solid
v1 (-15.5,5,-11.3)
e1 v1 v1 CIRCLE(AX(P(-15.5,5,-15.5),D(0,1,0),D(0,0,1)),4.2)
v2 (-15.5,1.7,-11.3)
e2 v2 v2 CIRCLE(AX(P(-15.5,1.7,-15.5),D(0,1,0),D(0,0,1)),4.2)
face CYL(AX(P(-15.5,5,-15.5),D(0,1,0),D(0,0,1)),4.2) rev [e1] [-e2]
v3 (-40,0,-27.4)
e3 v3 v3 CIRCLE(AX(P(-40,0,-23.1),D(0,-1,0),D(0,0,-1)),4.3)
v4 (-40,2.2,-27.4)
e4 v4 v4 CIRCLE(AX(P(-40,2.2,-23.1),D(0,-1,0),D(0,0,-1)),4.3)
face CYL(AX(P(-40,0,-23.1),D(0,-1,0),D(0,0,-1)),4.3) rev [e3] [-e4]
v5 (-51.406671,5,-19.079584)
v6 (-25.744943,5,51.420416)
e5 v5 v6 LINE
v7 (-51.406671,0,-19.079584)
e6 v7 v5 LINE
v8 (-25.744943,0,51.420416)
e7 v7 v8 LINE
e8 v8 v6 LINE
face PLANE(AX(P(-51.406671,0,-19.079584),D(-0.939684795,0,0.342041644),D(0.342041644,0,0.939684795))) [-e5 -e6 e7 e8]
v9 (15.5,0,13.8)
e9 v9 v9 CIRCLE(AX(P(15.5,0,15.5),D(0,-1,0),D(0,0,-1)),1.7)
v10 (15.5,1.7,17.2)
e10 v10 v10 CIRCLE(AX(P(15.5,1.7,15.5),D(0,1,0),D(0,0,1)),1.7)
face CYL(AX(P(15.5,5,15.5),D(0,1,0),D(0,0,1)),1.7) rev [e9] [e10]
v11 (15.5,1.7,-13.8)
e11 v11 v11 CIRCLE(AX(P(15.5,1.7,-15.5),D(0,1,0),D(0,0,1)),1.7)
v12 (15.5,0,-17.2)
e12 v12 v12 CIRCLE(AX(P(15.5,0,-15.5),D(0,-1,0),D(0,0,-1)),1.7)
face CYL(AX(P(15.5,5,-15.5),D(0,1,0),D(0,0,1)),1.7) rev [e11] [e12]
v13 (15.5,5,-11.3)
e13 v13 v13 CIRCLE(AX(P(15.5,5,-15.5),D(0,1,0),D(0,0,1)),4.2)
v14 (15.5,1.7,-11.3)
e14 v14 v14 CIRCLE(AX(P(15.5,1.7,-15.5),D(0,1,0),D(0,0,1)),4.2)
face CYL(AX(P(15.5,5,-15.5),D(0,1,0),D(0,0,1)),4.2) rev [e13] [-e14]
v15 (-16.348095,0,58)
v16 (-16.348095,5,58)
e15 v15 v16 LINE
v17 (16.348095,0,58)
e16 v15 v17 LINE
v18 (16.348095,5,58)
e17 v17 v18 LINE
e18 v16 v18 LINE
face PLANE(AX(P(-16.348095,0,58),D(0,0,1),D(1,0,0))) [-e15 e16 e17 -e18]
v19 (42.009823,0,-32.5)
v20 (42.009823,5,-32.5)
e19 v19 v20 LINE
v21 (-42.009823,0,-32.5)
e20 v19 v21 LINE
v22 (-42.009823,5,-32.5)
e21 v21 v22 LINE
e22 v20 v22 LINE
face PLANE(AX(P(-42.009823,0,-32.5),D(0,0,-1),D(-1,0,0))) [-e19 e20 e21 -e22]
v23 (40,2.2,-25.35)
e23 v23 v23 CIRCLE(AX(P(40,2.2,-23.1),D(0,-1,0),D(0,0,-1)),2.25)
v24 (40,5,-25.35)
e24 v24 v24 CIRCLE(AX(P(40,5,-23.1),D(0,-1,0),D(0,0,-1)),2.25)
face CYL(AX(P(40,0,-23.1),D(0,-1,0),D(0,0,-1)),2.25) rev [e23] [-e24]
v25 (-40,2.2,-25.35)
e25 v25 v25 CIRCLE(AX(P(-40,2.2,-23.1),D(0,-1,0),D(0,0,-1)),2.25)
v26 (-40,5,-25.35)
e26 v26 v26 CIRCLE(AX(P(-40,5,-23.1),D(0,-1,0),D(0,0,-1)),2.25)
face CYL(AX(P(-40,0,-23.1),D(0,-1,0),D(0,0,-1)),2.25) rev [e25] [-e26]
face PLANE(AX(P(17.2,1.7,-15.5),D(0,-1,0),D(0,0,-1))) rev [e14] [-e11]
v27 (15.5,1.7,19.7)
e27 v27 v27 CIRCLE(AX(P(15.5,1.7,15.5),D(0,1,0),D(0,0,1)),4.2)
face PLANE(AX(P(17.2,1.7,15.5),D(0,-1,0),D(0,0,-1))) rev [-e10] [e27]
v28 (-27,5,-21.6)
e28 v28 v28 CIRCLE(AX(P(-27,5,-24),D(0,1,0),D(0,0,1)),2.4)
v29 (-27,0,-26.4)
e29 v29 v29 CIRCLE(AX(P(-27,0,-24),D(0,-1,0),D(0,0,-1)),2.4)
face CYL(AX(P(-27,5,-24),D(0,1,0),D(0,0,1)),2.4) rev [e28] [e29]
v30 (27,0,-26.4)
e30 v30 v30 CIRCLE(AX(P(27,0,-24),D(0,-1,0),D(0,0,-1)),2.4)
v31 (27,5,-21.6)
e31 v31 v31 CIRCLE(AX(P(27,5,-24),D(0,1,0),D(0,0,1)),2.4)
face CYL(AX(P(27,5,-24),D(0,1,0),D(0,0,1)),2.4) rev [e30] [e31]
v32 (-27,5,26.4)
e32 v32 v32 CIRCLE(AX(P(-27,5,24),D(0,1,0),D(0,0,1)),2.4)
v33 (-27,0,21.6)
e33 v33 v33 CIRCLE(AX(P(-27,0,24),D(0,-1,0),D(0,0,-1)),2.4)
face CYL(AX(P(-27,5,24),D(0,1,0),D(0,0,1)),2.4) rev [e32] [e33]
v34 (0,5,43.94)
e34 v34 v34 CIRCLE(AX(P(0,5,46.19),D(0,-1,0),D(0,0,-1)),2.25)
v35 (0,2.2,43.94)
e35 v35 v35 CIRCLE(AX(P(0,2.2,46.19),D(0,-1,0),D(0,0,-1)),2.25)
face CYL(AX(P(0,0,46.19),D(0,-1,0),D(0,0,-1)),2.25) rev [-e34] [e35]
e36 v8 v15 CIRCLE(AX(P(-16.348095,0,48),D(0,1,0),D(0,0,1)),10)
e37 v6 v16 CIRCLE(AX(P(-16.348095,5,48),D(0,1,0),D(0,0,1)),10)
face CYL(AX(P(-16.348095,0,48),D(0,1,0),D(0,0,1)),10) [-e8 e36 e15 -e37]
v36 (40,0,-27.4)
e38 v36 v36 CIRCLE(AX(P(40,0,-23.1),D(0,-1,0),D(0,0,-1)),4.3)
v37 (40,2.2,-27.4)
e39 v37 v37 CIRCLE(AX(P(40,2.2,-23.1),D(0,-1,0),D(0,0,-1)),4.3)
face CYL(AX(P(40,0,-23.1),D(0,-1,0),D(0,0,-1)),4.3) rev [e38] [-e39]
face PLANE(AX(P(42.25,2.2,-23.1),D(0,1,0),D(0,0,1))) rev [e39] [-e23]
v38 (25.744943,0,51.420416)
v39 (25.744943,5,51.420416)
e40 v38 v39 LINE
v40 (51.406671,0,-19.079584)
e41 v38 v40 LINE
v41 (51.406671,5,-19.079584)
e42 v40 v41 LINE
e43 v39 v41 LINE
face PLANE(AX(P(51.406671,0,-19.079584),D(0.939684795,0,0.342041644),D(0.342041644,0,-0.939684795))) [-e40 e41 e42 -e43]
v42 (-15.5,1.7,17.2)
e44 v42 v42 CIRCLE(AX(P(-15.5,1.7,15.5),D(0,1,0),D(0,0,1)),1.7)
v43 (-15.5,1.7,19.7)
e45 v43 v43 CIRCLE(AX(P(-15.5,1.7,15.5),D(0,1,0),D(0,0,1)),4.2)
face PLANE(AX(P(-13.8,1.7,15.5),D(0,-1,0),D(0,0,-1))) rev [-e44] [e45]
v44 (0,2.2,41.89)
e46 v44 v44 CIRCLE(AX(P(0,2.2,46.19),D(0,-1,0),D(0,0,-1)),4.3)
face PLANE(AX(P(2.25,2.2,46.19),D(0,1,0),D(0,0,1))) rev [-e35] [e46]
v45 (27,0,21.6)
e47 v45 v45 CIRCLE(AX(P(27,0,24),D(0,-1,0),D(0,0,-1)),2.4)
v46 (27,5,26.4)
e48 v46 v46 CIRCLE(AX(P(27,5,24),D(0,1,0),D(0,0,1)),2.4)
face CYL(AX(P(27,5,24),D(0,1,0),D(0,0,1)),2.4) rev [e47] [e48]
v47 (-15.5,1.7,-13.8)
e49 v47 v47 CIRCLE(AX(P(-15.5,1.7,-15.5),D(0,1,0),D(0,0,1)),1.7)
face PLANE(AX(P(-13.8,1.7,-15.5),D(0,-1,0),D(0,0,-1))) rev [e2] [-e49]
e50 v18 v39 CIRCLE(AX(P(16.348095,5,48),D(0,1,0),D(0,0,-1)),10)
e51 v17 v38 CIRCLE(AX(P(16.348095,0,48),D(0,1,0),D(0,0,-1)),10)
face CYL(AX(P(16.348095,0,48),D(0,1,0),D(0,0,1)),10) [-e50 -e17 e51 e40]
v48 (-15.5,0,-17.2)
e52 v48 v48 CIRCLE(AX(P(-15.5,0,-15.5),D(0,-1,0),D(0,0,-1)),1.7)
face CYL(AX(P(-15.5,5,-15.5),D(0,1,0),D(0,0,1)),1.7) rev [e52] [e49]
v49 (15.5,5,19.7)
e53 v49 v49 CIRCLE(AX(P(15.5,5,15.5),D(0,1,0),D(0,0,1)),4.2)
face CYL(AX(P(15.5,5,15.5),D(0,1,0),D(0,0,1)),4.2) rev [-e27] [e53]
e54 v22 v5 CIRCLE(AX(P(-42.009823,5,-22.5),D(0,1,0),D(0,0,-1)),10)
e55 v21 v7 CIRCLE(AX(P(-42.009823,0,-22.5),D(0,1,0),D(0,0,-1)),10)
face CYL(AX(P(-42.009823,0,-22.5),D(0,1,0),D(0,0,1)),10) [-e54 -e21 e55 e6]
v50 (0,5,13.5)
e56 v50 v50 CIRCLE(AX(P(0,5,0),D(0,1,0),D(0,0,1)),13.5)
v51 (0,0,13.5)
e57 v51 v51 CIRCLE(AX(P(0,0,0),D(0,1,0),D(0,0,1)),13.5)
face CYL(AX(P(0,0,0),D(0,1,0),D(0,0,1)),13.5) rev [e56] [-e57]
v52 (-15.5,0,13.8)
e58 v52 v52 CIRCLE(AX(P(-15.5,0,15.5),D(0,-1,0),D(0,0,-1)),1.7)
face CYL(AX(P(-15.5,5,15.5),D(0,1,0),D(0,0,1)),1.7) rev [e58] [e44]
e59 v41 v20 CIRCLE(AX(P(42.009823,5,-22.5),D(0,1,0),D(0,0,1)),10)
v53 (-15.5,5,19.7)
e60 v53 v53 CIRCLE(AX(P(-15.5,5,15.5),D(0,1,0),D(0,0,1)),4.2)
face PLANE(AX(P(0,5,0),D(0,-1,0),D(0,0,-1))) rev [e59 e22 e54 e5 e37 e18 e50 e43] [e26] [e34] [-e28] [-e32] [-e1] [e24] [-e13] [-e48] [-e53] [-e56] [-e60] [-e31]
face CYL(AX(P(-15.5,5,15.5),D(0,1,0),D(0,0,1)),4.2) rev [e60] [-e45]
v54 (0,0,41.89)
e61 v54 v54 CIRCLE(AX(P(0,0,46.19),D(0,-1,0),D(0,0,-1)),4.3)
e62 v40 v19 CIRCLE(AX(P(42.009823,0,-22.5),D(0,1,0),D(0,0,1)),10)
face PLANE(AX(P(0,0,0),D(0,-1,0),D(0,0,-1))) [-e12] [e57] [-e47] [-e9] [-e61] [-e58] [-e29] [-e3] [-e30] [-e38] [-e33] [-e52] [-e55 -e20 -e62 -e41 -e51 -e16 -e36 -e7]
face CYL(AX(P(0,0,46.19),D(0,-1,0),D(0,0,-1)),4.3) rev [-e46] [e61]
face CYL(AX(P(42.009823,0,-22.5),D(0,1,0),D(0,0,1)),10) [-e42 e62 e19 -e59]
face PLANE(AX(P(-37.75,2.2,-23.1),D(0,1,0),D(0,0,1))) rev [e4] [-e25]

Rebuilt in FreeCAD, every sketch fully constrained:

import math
import FreeCAD as App
import Part
import Sketcher

V = App.Vector
Q = App.Units.Quantity


def add_polygon(sketch, points):
    """Adds a closed chain of lines whose ends are joined by coincident constraints."""
    first, n = sketch.GeometryCount, len(points)
    for a, b in zip(points, points[1:] + points[:1]):
        sketch.addGeometry(Part.LineSegment(App.Vector(*a, 0), App.Vector(*b, 0)), False)
    for i in range(n):
        sketch.addConstraint(Sketcher.Constraint("Coincident", first + i, 2, first + (i + 1) % n, 1))

doc = App.newDocument("Part")
body = doc.addObject("PartDesign::Body", "Body")

sketch1 = body.newObject("Sketcher::SketchObject", "Sketch")
sketch1.AttachmentSupport = (doc.getObject("XZ_Plane"), [""])
sketch1.MapMode = "FlatFace"
add_polygon(sketch1, [(-65, -65), (-65, 65), (65, 65), (65, -65)])
sketch1.addConstraint([
    Sketcher.Constraint("Vertical", 0),
    Sketcher.Constraint("Horizontal", 1),
    Sketcher.Constraint("Vertical", 2),
    Sketcher.Constraint("Horizontal", 3),
    Sketcher.Constraint("Symmetric", 0, 2, 2, 2, -1, 1),
    Sketcher.Constraint("Equal", 3, 0),
    Sketcher.Constraint("DistanceX", 1, 1, 1, 2, Q("130 mm")),
])
pad1 = body.newObject("PartDesign::Pad", "Pad")
pad1.Profile = sketch1
pad1.Length = 5
pad1.Reversed = True

sketch2 = body.newObject("Sketcher::SketchObject", "Sketch001")
sketch2.AttachmentSupport = (doc.getObject("XZ_Plane"), [""])
sketch2.MapMode = "FlatFace"
sketch2.AttachmentOffset = App.Placement(V(0, 0, -5), App.Rotation())
sketch2.addGeometry(Part.Circle(V(0, 0, 0), V(0, 0, 1), 14), False)
sketch2.addConstraint([
    Sketcher.Constraint("Coincident", 0, 3, -1, 1),
    Sketcher.Constraint("Diameter", 0, Q("27 mm")),
])
pocket1 = body.newObject("PartDesign::Pocket", "Pocket")
pocket1.Profile = sketch2
pocket1.Length = 5
pocket1.Reversed = True

sketch3 = body.newObject("Sketcher::SketchObject", "Sketch002")
sketch3.AttachmentSupport = (doc.getObject("XZ_Plane"), [""])
sketch3.MapMode = "FlatFace"
sketch3.AttachmentOffset = App.Placement(V(0, 0, -5), App.Rotation())
add_polygon(sketch3, [(-65, -65), (-65, 65), (65, 65), (65, -65)])
sketch3.addGeometry(Part.ArcOfCircle(Part.Circle(V(-42, -22, 0), V(0, 0, 1), 10), math.radians(160), math.radians(270)), False)
sketch3.addGeometry(Part.LineSegment(V(-42, -32, 0), V(42, -32, 0)), False)
sketch3.addGeometry(Part.ArcOfCircle(Part.Circle(V(42, -22, 0), V(0, 0, 1), 10), math.radians(-90), math.radians(20)), False)
sketch3.addGeometry(Part.LineSegment(V(51, -19, 0), V(26, 51, 0)), False)
sketch3.addGeometry(Part.ArcOfCircle(Part.Circle(V(16, 48, 0), V(0, 0, 1), 10), math.radians(20), math.radians(90)), False)
sketch3.addGeometry(Part.LineSegment(V(16, 58, 0), V(-16, 58, 0)), False)
sketch3.addGeometry(Part.ArcOfCircle(Part.Circle(V(-16, 48, 0), V(0, 0, 1), 10), math.radians(90), math.radians(160)), False)
sketch3.addGeometry(Part.LineSegment(V(-26, 51, 0), V(-51, -19, 0)), False)
sketch3.addConstraint([
    Sketcher.Constraint("Tangent", 4, 2, 5, 1),
    Sketcher.Constraint("Tangent", 5, 2, 6, 1),
    Sketcher.Constraint("Tangent", 6, 2, 7, 1),
    Sketcher.Constraint("Tangent", 7, 2, 8, 1),
    Sketcher.Constraint("Tangent", 8, 2, 9, 1),
    Sketcher.Constraint("Tangent", 9, 2, 10, 1),
    Sketcher.Constraint("Tangent", 10, 2, 11, 1),
    Sketcher.Constraint("Tangent", 11, 2, 4, 1),
    Sketcher.Constraint("Vertical", 0),
    Sketcher.Constraint("Horizontal", 1),
    Sketcher.Constraint("Vertical", 2),
    Sketcher.Constraint("Horizontal", 3),
    Sketcher.Constraint("Horizontal", 5),
    Sketcher.Constraint("Horizontal", 9),
    Sketcher.Constraint("Equal", 4, 6),
    Sketcher.Constraint("Equal", 6, 8),
    Sketcher.Constraint("Equal", 8, 10),
    Sketcher.Constraint("Symmetric", 0, 2, 2, 2, -1, 1),
    Sketcher.Constraint("Symmetric", 7, 2, 10, 2, -2),
    Sketcher.Constraint("Equal", 3, 0),
    Sketcher.Constraint("Radius", 4, Q("10 mm")),
    Sketcher.Constraint("DistanceX", 1, 1, 1, 2, Q("130 mm")),
    Sketcher.Constraint("DistanceY", -1, 1, 8, 3, Q("48 mm")),
    Sketcher.Constraint("DistanceY", 4, 3, -1, 1, Q("22.5 mm")),
    Sketcher.Constraint("DistanceX", 9, 2, 9, 1, Q("32.69619 mm")),
    Sketcher.Constraint("DistanceX", 5, 1, 5, 2, Q("84.019647 mm")),
])
pocket2 = body.newObject("PartDesign::Pocket", "Pocket001")
pocket2.Profile = sketch3
pocket2.Type = "ThroughAll"
pocket2.Reversed = True

sketch4 = body.newObject("Sketcher::SketchObject", "Sketch003")
sketch4.AttachmentSupport = (doc.getObject("XZ_Plane"), [""])
sketch4.MapMode = "FlatFace"
sketch4.AttachmentOffset = App.Placement(V(0, 0, -5), App.Rotation())
sketch4.addGeometry([
    Part.Circle(V(-27, -24, 0), V(0, 0, 1), 2.4),
    Part.Circle(V(27, -24, 0), V(0, 0, 1), 2.4),
    Part.Circle(V(27, 24, 0), V(0, 0, 1), 2.4),
    Part.Circle(V(-27, 24, 0), V(0, 0, 1), 2.4),
], False)
sketch4.addConstraint([
    Sketcher.Constraint("Equal", 0, 1),
    Sketcher.Constraint("Equal", 1, 2),
    Sketcher.Constraint("Equal", 2, 3),
    Sketcher.Constraint("Symmetric", 0, 3, 2, 3, -1, 1),
    Sketcher.Constraint("Symmetric", 1, 3, 3, 3, -1, 1),
    Sketcher.Constraint("Symmetric", 0, 3, 1, 3, -2),
    Sketcher.Constraint("Diameter", 0, Q("4.8 mm")),
    Sketcher.Constraint("DistanceX", 0, 3, -1, 1, Q("27 mm")),
    Sketcher.Constraint("DistanceY", 0, 3, -1, 1, Q("24 mm")),
])
doc.recompute()
hole = body.newObject("PartDesign::Hole", "Hole")
hole.Profile = sketch4
hole.ThreadType = "None"
hole.Diameter = 4.8
hole.DepthType = "Dimension"
hole.Depth = 5
hole.DrillPoint = "Flat"
hole.Reversed = True

sketch5 = body.newObject("Sketcher::SketchObject", "Sketch004")
sketch5.AttachmentSupport = (doc.getObject("XZ_Plane"), [""])
sketch5.MapMode = "FlatFace"
sketch5.AttachmentOffset = App.Placement(V(0, 0, -5), App.Rotation())
sketch5.addGeometry([
    Part.Circle(V(-15.5, -15.5, 0), V(0, 0, 1), 1.7),
    Part.Circle(V(15.5, -15.5, 0), V(0, 0, 1), 1.7),
    Part.Circle(V(15.5, 15.5, 0), V(0, 0, 1), 1.7),
    Part.Circle(V(-15.5, 15.5, 0), V(0, 0, 1), 1.7),
], False)
sketch5.addConstraint([
    Sketcher.Constraint("Equal", 0, 1),
    Sketcher.Constraint("Equal", 1, 2),
    Sketcher.Constraint("Equal", 2, 3),
    Sketcher.Constraint("Symmetric", 0, 3, 2, 3, -1, 1),
    Sketcher.Constraint("Symmetric", 1, 3, 3, 3, -1, 1),
    Sketcher.Constraint("Symmetric", 0, 3, 1, 3, -2),
    Sketcher.Constraint("Diameter", 0, Q("3.4 mm")),
    Sketcher.Constraint("DistanceX", 0, 3, 1, 3, Q("31 mm")),
    Sketcher.Constraint("DistanceY", 1, 3, 2, 3, Q("31 mm")),
])
doc.recompute()
hole2 = body.newObject("PartDesign::Hole", "Hole001")
hole2.Profile = sketch5
hole2.ThreadType = "None"
hole2.Diameter = 3.4
hole2.DepthType = "Dimension"
hole2.Depth = 5
hole2.DrillPoint = "Flat"
hole2.HoleCutType = "Counterbore"
hole2.HoleCutDiameter = 8.4
hole2.HoleCutDepth = 3.3
hole2.Reversed = True

sketch6 = body.newObject("Sketcher::SketchObject", "Sketch005")
sketch6.AttachmentSupport = (doc.getObject("XZ_Plane"), [""])
sketch6.MapMode = "FlatFace"
sketch6.addGeometry([
    Part.Circle(V(0, 46.2, 0), V(0, 0, 1), 2.2),
    Part.Circle(V(-40, -23.1, 0), V(0, 0, 1), 2.2),
    Part.Circle(V(40, -23.1, 0), V(0, 0, 1), 2.2),
], False)
sketch6.addConstraint([
    Sketcher.Constraint("Equal", 0, 1),
    Sketcher.Constraint("Equal", 1, 2),
    Sketcher.Constraint("Symmetric", 1, 3, 2, 3, -2),
    Sketcher.Constraint("PointOnObject", 0, 3, -2),
    Sketcher.Constraint("Diameter", 0, Q("4.5 mm")),
    Sketcher.Constraint("DistanceX", 1, 3, -1, 1, Q("40 mm")),
    Sketcher.Constraint("DistanceY", 1, 3, -1, 1, Q("23.1 mm")),
    Sketcher.Constraint("DistanceY", -1, 1, 0, 3, Q("46.19 mm")),
])
doc.recompute()
hole3 = body.newObject("PartDesign::Hole", "Hole002")
hole3.Profile = sketch6
hole3.ThreadType = "None"
hole3.Diameter = 4.5
hole3.DepthType = "Dimension"
hole3.Depth = 5
hole3.DrillPoint = "Flat"
hole3.HoleCutType = "Counterbore"
hole3.HoleCutDiameter = 8.6
hole3.HoleCutDepth = 2.2

doc.recompute()
